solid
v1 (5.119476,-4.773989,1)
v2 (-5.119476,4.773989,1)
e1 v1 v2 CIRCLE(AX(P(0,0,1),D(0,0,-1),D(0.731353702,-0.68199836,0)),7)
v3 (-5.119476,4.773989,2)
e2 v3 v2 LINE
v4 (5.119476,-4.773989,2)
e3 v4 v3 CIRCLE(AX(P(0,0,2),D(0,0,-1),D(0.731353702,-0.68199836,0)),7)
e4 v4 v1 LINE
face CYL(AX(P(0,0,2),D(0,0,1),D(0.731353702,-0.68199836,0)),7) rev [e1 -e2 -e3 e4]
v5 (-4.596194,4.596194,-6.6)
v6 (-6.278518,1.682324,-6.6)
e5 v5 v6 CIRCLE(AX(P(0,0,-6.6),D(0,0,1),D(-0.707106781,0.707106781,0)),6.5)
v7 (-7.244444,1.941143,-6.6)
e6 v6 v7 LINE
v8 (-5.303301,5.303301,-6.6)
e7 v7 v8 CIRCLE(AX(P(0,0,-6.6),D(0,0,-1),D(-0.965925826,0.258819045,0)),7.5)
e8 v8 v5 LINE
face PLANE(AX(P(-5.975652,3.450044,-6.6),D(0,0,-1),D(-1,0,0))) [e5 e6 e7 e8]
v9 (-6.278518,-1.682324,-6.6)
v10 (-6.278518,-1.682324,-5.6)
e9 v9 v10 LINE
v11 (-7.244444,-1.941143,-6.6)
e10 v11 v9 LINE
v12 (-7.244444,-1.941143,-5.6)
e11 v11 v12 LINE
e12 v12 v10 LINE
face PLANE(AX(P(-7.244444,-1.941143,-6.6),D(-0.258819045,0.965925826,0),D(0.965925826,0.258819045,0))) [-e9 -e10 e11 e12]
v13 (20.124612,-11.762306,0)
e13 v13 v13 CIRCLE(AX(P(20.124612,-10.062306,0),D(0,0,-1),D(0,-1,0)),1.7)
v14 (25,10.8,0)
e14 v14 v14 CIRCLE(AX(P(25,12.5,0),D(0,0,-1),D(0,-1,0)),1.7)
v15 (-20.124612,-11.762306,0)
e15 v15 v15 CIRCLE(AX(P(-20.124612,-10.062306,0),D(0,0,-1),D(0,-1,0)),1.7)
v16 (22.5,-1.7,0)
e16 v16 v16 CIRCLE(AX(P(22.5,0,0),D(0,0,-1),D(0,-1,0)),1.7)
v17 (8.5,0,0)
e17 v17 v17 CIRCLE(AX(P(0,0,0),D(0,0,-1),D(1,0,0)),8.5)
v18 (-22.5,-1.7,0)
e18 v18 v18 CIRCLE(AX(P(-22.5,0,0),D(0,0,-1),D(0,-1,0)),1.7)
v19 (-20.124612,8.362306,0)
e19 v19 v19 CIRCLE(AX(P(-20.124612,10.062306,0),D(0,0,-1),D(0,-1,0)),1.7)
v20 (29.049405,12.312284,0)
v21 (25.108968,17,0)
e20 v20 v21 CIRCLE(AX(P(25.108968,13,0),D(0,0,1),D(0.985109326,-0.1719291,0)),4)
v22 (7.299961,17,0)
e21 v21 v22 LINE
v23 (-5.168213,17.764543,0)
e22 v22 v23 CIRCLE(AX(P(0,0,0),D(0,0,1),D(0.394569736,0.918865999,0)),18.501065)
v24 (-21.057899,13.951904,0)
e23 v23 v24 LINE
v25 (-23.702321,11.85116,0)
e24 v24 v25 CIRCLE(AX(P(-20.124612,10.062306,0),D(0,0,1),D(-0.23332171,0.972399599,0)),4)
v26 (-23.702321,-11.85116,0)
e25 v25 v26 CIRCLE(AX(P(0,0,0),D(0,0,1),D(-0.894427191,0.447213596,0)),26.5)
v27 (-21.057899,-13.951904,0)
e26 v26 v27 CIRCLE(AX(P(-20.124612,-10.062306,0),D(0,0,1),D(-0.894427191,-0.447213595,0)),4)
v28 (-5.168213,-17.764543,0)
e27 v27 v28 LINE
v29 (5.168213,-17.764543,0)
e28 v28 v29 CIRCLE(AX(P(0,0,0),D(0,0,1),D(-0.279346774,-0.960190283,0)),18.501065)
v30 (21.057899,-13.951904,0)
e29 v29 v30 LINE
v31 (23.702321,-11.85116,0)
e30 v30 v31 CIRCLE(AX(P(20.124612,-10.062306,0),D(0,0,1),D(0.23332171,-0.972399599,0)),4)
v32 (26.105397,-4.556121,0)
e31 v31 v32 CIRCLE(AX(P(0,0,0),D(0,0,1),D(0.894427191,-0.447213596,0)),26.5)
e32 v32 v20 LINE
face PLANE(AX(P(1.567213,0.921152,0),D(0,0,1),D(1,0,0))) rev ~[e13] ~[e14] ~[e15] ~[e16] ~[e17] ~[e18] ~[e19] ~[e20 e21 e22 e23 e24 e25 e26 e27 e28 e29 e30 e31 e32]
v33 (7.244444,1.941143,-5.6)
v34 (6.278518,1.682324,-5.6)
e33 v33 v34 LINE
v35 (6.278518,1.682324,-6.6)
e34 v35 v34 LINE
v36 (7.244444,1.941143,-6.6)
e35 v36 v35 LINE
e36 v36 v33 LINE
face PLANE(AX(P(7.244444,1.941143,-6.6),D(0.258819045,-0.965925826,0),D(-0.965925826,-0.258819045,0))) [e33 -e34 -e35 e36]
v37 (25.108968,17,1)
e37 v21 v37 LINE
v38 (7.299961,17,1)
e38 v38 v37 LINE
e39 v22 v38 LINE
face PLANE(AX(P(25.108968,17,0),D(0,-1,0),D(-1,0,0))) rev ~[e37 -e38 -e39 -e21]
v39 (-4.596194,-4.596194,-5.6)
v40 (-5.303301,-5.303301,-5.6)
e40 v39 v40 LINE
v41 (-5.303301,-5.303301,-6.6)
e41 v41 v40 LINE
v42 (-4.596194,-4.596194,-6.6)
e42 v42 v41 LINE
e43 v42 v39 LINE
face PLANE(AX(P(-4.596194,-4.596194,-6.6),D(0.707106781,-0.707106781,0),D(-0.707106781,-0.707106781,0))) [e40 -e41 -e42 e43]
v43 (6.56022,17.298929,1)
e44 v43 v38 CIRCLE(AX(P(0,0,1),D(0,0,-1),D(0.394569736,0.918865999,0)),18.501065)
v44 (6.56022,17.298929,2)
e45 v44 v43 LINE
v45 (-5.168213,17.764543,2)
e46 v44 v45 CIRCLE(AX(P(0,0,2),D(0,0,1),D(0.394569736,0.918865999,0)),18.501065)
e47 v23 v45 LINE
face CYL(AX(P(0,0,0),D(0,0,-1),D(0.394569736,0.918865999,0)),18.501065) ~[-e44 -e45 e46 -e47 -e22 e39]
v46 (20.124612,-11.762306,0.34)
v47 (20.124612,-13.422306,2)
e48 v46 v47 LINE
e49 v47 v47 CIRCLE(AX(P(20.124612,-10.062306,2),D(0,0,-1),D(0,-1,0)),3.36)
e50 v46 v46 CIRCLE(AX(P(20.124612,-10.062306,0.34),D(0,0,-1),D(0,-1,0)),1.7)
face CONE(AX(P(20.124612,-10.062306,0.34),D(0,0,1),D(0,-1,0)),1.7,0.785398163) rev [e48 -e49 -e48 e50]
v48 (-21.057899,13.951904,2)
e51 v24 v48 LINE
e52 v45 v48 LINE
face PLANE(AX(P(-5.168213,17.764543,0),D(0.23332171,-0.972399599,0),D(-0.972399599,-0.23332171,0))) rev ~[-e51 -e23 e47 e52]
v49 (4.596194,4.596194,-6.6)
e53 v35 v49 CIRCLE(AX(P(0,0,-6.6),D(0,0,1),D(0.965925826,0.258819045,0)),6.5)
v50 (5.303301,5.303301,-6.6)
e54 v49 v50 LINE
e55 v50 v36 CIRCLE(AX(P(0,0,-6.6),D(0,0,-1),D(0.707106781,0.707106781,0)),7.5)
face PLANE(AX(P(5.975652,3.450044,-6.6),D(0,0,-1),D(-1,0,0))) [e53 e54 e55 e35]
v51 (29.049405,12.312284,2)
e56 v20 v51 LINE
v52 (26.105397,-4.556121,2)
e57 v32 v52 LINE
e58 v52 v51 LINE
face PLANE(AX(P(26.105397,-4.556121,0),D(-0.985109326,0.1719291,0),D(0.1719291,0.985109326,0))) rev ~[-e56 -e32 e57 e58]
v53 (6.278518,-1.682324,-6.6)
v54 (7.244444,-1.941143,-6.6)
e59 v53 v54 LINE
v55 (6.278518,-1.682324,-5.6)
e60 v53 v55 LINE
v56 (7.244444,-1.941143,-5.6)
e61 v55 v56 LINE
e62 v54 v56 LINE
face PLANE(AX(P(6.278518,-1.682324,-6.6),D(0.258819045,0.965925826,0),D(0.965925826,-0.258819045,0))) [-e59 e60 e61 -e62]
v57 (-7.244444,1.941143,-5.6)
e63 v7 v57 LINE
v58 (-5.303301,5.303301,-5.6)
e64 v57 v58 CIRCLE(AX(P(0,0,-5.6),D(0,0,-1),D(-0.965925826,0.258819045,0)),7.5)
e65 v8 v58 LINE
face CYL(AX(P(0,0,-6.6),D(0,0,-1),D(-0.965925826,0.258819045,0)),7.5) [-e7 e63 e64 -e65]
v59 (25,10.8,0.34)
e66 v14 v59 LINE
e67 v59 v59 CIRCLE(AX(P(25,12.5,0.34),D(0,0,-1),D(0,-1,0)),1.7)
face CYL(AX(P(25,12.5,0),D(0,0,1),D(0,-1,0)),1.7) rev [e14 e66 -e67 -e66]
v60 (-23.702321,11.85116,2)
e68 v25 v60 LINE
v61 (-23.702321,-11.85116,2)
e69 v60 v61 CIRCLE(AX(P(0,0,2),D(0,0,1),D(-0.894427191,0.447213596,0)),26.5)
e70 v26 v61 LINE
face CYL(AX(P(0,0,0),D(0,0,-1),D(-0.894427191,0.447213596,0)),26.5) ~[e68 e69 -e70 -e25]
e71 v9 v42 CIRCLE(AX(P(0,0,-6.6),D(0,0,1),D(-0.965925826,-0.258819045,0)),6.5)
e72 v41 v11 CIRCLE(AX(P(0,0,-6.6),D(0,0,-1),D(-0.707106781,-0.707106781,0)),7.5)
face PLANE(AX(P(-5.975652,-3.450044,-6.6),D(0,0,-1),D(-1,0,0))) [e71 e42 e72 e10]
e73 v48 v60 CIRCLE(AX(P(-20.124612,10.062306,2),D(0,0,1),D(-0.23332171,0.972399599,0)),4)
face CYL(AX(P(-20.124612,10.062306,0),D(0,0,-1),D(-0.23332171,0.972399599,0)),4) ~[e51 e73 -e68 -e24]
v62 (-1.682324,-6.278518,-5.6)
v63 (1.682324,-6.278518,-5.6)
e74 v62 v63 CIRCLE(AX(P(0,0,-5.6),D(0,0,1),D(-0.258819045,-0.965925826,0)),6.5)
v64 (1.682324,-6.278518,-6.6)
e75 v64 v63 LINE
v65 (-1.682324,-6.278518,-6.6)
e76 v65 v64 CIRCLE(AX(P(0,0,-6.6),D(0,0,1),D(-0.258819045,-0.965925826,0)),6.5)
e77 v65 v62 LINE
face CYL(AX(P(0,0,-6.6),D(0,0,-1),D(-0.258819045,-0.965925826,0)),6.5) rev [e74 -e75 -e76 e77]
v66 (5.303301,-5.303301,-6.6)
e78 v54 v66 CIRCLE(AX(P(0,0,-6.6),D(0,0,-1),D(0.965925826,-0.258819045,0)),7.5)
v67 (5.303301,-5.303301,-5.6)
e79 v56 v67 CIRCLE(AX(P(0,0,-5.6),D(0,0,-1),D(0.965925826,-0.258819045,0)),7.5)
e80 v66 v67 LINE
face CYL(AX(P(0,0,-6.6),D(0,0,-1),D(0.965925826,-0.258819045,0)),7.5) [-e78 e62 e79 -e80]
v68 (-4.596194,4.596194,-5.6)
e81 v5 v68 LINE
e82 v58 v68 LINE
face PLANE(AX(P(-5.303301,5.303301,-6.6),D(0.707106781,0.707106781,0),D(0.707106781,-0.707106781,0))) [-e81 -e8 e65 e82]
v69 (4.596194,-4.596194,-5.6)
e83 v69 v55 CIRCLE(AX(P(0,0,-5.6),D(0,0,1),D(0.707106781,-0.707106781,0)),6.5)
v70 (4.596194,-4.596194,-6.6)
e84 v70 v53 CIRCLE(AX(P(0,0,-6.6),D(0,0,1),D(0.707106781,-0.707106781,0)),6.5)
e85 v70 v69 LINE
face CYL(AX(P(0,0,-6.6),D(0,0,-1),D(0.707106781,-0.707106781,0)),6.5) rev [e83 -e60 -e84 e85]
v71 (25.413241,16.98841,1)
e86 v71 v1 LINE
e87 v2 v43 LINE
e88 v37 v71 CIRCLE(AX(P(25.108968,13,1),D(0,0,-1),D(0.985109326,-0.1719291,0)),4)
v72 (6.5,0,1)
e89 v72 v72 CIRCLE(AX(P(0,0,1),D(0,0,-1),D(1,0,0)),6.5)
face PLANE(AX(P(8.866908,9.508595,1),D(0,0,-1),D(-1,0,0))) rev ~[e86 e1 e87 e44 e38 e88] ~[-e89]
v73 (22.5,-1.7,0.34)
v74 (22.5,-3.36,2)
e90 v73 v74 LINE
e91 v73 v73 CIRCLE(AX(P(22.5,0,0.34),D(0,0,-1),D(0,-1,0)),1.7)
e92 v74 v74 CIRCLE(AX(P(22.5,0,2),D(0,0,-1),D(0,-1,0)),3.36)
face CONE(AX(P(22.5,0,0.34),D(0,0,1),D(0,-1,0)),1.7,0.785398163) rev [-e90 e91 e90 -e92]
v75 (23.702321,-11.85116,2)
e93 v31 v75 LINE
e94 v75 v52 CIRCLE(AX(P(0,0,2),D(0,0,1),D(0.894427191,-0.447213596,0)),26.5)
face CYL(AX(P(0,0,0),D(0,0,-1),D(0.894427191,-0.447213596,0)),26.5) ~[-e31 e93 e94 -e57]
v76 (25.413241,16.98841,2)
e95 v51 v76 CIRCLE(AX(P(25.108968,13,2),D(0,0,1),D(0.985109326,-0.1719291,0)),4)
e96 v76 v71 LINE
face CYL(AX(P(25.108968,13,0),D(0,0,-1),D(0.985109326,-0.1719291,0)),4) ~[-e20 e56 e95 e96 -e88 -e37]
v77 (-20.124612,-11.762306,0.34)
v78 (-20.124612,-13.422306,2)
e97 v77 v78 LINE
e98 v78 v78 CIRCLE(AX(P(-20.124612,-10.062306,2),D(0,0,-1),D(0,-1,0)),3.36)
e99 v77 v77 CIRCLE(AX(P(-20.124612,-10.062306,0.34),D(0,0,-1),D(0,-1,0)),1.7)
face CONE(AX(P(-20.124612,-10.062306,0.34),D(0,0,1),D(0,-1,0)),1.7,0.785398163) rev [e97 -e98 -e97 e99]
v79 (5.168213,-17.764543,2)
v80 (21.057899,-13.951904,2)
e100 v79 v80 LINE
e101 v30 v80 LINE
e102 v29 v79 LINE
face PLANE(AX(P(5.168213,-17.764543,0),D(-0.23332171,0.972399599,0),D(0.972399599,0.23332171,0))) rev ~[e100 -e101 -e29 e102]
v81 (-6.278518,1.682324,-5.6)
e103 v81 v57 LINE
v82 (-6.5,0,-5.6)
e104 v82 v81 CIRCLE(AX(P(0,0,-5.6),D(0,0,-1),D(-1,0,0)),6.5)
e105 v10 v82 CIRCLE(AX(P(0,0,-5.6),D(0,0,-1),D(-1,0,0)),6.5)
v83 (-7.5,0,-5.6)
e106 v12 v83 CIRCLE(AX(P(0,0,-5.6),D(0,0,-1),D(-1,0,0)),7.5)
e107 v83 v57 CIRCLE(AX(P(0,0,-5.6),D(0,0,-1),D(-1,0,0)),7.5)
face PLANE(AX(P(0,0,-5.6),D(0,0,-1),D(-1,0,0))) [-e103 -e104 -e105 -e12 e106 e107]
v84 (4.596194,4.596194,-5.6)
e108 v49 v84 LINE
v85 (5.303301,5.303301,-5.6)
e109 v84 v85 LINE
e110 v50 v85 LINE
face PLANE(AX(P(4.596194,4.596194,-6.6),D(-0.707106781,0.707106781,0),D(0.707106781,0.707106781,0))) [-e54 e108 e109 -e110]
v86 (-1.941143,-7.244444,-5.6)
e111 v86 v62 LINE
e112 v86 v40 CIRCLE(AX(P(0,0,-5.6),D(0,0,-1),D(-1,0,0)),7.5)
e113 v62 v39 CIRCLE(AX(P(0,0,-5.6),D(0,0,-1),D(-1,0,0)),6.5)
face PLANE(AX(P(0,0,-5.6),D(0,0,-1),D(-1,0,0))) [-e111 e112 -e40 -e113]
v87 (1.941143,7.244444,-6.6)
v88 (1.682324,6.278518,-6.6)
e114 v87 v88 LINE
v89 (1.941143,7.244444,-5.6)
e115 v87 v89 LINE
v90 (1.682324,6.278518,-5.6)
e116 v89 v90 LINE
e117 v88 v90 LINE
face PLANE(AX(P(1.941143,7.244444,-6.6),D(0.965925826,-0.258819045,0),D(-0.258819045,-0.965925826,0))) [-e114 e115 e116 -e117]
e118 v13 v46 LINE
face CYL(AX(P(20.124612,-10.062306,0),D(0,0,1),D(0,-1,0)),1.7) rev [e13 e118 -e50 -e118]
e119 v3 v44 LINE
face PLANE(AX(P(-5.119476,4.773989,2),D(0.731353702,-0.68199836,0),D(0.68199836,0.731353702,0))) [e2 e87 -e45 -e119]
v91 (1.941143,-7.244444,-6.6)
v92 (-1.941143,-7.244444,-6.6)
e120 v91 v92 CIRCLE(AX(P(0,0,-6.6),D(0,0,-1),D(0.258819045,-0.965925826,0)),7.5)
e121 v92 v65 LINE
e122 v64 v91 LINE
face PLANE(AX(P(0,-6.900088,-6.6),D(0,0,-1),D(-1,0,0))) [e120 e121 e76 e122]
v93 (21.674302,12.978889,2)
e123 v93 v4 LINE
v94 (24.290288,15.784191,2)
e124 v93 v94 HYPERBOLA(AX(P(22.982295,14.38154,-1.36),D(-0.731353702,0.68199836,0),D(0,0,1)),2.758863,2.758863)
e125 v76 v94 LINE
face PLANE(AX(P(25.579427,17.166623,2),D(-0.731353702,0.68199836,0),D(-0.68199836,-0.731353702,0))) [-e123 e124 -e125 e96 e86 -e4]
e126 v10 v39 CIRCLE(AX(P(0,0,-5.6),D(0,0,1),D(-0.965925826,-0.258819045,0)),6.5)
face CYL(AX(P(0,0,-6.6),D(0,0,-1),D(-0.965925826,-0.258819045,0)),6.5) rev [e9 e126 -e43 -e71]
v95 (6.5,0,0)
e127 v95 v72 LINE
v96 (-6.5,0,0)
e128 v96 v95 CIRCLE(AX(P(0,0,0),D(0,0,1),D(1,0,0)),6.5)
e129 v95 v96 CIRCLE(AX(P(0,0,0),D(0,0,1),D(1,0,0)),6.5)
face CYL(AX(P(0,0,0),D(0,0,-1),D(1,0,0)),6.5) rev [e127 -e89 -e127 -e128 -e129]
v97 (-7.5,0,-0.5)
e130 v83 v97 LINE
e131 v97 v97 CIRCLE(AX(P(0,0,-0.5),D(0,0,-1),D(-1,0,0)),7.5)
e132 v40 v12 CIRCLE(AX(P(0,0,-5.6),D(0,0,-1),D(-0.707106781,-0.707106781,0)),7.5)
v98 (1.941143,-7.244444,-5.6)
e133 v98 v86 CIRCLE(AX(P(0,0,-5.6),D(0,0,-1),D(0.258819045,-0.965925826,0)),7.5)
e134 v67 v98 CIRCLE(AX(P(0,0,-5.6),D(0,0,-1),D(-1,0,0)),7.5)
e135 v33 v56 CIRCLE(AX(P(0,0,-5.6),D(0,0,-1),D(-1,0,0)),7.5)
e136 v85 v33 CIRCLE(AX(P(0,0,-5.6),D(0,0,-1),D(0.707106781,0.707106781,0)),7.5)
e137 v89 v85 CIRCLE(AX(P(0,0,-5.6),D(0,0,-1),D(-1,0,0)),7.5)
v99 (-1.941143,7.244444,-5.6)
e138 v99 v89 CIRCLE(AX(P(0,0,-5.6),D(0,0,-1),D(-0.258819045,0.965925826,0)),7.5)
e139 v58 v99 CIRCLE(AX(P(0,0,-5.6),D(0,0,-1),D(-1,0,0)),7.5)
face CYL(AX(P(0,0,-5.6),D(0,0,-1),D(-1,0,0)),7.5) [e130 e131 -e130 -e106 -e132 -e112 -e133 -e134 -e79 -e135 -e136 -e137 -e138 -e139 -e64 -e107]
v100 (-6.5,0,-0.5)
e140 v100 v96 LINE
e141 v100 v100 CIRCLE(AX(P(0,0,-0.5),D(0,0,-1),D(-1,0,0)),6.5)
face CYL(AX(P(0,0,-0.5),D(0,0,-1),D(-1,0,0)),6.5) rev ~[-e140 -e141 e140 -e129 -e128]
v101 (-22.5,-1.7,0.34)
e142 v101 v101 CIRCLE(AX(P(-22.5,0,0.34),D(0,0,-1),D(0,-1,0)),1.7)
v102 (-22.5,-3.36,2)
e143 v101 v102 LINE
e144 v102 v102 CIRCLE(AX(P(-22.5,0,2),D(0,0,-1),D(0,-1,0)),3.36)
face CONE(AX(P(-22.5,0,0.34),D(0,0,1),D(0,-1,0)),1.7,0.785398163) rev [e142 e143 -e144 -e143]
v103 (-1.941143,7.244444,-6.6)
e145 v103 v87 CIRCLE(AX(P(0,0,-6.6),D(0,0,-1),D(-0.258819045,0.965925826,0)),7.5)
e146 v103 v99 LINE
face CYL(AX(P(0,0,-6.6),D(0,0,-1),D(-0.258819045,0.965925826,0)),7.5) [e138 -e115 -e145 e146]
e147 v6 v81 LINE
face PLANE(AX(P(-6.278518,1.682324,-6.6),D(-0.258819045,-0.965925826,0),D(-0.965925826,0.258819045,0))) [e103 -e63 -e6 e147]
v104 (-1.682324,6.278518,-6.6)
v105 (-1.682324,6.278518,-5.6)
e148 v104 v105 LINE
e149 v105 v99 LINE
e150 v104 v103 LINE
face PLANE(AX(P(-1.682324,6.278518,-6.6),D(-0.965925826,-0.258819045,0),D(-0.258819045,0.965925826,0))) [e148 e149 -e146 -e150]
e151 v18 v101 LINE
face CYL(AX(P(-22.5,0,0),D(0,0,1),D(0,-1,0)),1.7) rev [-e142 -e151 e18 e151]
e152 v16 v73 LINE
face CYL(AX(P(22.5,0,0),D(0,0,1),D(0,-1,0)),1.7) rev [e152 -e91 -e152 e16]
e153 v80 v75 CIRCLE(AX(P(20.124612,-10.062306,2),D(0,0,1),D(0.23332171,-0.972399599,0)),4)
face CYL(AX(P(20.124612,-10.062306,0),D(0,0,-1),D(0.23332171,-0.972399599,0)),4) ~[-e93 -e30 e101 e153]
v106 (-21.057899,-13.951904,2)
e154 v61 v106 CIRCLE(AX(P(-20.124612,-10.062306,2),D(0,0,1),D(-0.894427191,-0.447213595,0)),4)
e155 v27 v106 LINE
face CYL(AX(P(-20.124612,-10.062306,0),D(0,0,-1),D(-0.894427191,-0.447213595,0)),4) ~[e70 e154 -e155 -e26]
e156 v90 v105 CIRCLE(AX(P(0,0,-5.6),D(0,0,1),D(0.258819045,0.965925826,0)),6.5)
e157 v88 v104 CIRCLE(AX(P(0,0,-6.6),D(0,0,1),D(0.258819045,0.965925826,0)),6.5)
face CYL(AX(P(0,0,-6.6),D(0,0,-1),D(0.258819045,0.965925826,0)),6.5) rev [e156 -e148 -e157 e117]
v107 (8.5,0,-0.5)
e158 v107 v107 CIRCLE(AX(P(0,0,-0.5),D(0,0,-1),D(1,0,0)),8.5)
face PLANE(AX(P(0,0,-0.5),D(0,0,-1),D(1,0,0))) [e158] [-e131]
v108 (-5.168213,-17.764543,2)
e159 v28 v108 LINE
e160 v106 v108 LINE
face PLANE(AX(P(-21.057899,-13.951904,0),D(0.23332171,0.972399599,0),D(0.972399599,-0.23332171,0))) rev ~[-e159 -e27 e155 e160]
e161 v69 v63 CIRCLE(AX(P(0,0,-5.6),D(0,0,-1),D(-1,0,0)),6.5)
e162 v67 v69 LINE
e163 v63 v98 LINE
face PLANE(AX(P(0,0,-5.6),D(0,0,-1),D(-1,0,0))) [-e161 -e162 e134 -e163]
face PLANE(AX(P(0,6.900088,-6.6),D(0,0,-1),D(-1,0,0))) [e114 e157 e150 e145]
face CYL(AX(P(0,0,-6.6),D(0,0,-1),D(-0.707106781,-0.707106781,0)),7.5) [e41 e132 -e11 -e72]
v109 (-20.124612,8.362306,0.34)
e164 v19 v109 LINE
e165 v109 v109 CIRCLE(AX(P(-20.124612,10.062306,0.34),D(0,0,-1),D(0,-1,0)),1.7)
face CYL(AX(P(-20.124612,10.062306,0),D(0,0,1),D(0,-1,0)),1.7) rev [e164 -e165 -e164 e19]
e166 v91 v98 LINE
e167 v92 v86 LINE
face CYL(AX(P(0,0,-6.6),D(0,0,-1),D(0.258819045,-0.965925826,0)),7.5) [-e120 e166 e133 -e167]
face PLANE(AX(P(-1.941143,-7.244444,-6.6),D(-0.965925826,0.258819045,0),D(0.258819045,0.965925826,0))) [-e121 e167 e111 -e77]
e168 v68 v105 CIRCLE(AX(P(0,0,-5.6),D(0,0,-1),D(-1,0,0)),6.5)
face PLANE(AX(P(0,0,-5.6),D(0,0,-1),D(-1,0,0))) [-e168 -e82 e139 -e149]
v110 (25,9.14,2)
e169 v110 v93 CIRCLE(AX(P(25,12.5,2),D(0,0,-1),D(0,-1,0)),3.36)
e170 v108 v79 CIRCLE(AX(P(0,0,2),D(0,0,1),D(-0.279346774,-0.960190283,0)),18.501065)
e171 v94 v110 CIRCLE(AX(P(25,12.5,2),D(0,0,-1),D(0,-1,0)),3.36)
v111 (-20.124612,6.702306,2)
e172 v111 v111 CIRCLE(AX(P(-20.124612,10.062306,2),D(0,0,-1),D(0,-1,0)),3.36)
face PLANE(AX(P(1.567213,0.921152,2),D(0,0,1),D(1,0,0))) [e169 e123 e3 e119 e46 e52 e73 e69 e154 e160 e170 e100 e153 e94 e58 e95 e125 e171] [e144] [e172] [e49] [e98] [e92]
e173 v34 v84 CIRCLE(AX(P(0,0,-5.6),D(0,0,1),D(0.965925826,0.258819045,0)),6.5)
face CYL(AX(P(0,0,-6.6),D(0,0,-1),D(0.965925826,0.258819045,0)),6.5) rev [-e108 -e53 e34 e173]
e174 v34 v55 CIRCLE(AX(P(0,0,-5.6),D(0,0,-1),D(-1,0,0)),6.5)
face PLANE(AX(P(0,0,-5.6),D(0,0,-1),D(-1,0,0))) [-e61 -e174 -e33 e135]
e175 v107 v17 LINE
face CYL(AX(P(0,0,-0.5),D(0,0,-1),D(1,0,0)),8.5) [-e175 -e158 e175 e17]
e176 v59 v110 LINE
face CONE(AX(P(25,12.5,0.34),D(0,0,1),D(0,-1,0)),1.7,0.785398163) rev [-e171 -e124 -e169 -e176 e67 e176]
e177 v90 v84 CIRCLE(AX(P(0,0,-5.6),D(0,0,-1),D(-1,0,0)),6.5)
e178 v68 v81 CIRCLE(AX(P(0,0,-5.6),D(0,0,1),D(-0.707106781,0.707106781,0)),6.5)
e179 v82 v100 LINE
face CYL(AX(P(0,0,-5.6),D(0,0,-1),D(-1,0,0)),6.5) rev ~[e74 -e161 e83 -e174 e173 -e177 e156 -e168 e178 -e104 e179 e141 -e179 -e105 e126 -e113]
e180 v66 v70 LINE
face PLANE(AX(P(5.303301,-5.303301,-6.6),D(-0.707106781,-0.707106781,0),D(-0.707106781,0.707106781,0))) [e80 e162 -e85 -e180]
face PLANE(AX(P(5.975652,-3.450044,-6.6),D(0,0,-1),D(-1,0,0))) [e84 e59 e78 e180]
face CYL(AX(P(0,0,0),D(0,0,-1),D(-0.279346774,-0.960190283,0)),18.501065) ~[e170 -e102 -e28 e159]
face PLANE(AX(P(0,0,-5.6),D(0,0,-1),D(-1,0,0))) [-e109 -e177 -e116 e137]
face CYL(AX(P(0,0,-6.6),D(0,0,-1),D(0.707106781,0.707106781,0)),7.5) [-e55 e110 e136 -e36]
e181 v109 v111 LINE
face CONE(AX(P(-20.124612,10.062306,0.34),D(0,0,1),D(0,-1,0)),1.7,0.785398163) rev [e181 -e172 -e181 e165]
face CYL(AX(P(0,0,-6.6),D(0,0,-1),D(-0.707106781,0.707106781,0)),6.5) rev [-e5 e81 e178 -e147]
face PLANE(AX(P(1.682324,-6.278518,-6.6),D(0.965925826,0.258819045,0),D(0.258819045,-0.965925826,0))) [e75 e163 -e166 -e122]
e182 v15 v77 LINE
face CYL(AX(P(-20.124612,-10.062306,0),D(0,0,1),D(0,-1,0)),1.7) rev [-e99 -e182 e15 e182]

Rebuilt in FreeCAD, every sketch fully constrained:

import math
import FreeCAD as App
import Part
import Sketcher
Q = App.Units.Quantity


def add_polygon(sketch, points):
    """Adds a closed chain of lines whose ends are joined by coincident constraints."""
    first, n = sketch.GeometryCount, len(points)
    for a, b in zip(points, points[1:] + points[:1]):
        sketch.addGeometry(Part.LineSegment(App.Vector(*a, 0), App.Vector(*b, 0)), False)
    for i in range(n):
        sketch.addConstraint(Sketcher.Constraint("Coincident", first + i, 2, first + (i + 1) % n, 1))

doc = App.newDocument("Part")
body = doc.addObject("PartDesign::Body", "Body")

# Sketch on XY plane
sketch1 = doc.addObject("Sketcher::SketchObject", "Sketch")
body.addObject(sketch1)
sketch1.AttachmentSupport = (doc.XY_Plane, [""])
sketch1.MapMode = "FlatFace"
sketch1.addGeometry([
    Part.LineSegment(App.Vector(-5.168213, 17.764543, 0), App.Vector(-21.057899, 13.951904, 0)),  # 0
    Part.ArcOfCircle(Part.Circle(App.Vector(-20.124612, 10.062306, 0), App.Vector(0, 0, 1), 4), math.radians(103.492714), math.radians(153.434949)),  # 1
    Part.ArcOfCircle(Part.Circle(App.Vector(0, 0, 0), App.Vector(0, 0, 1), 26.5), math.radians(153.434949), math.radians(206.565051)),  # 2
    Part.ArcOfCircle(Part.Circle(App.Vector(-20.124612, -10.062306, 0), App.Vector(0, 0, 1), 4), math.radians(-153.434949), math.radians(-103.492714)),  # 3
    Part.LineSegment(App.Vector(-21.057899, -13.951904, 0), App.Vector(-5.168213, -17.764543, 0)),  # 4
    Part.ArcOfCircle(Part.Circle(App.Vector(0, 0, 0), App.Vector(0, 0, 1), 18.501065), math.radians(-106.221222), math.radians(-73.778778)),  # 5
    Part.LineSegment(App.Vector(5.168213, -17.764543, 0), App.Vector(21.057899, -13.951904, 0)),  # 6
    Part.ArcOfCircle(Part.Circle(App.Vector(20.124612, -10.062306, 0), App.Vector(0, 0, 1), 4), math.radians(-76.507286), math.radians(-26.565051)),  # 7
    Part.ArcOfCircle(Part.Circle(App.Vector(0, 0, 0), App.Vector(0, 0, 1), 26.5), math.radians(-26.565051), math.radians(-9.9)),  # 8
    Part.LineSegment(App.Vector(26.105397, -4.556121, 0), App.Vector(29.049405, 12.312284, 0)),  # 9
    Part.ArcOfCircle(Part.Circle(App.Vector(25.108968, 13, 0), App.Vector(0, 0, 1), 4), math.radians(-9.9), math.radians(90)),  # 10
    Part.LineSegment(App.Vector(25.108968, 17, 0), App.Vector(7.299961, 17, 0)),  # 11
    Part.ArcOfCircle(Part.Circle(App.Vector(0, 0, 0), App.Vector(0, 0, 1), 18.501065), math.radians(66.760858), math.radians(106.221222)),  # 12
    Part.Circle(App.Vector(-20.124612, -10.062306, 0), App.Vector(0, 0, 1), 0.5),  # 13
    Part.Circle(App.Vector(-22.5, 0, 0), App.Vector(0, 0, 1), 0.5),  # 14
    Part.Circle(App.Vector(0, 0, 0), App.Vector(0, 0, 1), 6.5),  # 15
    Part.Circle(App.Vector(20.124612, -10.062306, 0), App.Vector(0, 0, 1), 0.5),  # 16
    Part.Circle(App.Vector(22.5, 0, 0), App.Vector(0, 0, 1), 0.5),  # 17
    Part.Circle(App.Vector(-20.124612, 10.062306, 0), App.Vector(0, 0, 1), 0.5),  # 18
    Part.Circle(App.Vector(25, 12.5, 0), App.Vector(0, 0, 1), 0.5),  # 19
], False)
sketch1.addConstraint([
    Sketcher.Constraint("Tangent", 0, 2, 1, 1),
    Sketcher.Constraint("Tangent", 1, 2, 2, 1),
    Sketcher.Constraint("Tangent", 2, 2, 3, 1),
    Sketcher.Constraint("Tangent", 3, 2, 4, 1),
    Sketcher.Constraint("Coincident", 4, 2, 5, 1),
    Sketcher.Constraint("Coincident", 5, 2, 6, 1),
    Sketcher.Constraint("Tangent", 6, 2, 7, 1),
    Sketcher.Constraint("Tangent", 7, 2, 8, 1),
    Sketcher.Constraint("Tangent", 8, 2, 9, 1),
    Sketcher.Constraint("Tangent", 9, 2, 10, 1),
    Sketcher.Constraint("Tangent", 10, 2, 11, 1),
    Sketcher.Constraint("Coincident", 11, 2, 12, 1),
    Sketcher.Constraint("Coincident", 12, 2, 0, 1),
    Sketcher.Constraint("Horizontal", 11),
    Sketcher.Constraint("Coincident", 2, 3, -1, 1),
    Sketcher.Constraint("Coincident", 5, 3, -1, 1),
    Sketcher.Constraint("Coincident", 8, 3, -1, 1),
    Sketcher.Constraint("Coincident", 12, 3, -1, 1),
    Sketcher.Constraint("Coincident", 15, 3, -1, 1),
    Sketcher.Constraint("Coincident", 13, 3, 3, 3),
    Sketcher.Constraint("Coincident", 16, 3, 7, 3),
    Sketcher.Constraint("Coincident", 18, 3, 1, 3),
    Sketcher.Constraint("Equal", 1, 3),
    Sketcher.Constraint("Equal", 3, 7),
    Sketcher.Constraint("Equal", 2, 8),
    Sketcher.Constraint("Equal", 7, 10),
    Sketcher.Constraint("Equal", 5, 12),
    Sketcher.Constraint("Equal", 13, 14),
    Sketcher.Constraint("Equal", 14, 16),
    Sketcher.Constraint("Equal", 16, 17),
    Sketcher.Constraint("Equal", 17, 18),
    Sketcher.Constraint("Equal", 18, 19),
    Sketcher.Constraint("Symmetric", 14, 3, 17, 3, -1, 1),
    Sketcher.Constraint("Symmetric", 0, 2, 6, 2, -1, 1),
    Sketcher.Constraint("Symmetric", 3, 2, 6, 2, -2),
    Sketcher.Constraint("PointOnObject", 14, 3, -1),
    Sketcher.Constraint("Diameter", 13, Q("1 mm")),
    Sketcher.Constraint("Diameter", 15, Q("13 mm")),
    Sketcher.Constraint("Radius", 1, Q("4 mm")),
    Sketcher.Constraint("Radius", 2, Q("26.5 mm")),
    Sketcher.Constraint("DistanceY", -1, 1, 10, 3, Q("13 mm")),
    Sketcher.Constraint("DistanceX", -1, 1, 19, 3, Q("25 mm")),
    Sketcher.Constraint("Angle", 9, Q("80.1 deg")),
    Sketcher.Constraint("DistanceX", 14, 3, -1, 1, Q("22.5 mm")),
    Sketcher.Constraint("DistanceY", -1, 1, 19, 3, Q("12.5 mm")),
    Sketcher.Constraint("Radius", 5, Q("18.501065 mm")),
    Sketcher.Constraint("DistanceX", 0, 2, -1, 1, Q("21.057899 mm")),
    Sketcher.Constraint("DistanceX", 13, 3, 4, 2, Q("14.956399 mm")),
])
pad1 = doc.addObject("PartDesign::Pad", "Pad")
body.addObject(pad1)
pad1.Profile = sketch1
pad1.Length = 2

# Sketch on YZ plane
sketch2 = doc.addObject("Sketcher::SketchObject", "Sketch001")
body.addObject(sketch2)
sketch2.AttachmentSupport = (doc.YZ_Plane, [""])
sketch2.MapMode = "FlatFace"
sketch2.AttachmentOffset = App.Placement(App.Vector(0, 0, -20.124612), App.Rotation())
add_polygon(sketch2, [(10.062306, 0), (10.062306, 2), (6.702306, 2), (8.362306, 0.34), (8.362306, 0)])  # lines 0-4
sketch2.addGeometry(Part.LineSegment(App.Vector(10.062306, 2, 0), App.Vector(10.062306, 0, 0)), True)  # axis
sketch2.addConstraint([
    Sketcher.Constraint("Vertical", 0),
    Sketcher.Constraint("Horizontal", 1),
    Sketcher.Constraint("Vertical", 3),
    Sketcher.Constraint("Horizontal", 4),
    Sketcher.Constraint("Vertical", 5),
    Sketcher.Constraint("Coincident", 5, 1, 0, 2),
    Sketcher.Constraint("PointOnObject", 3, 2, -1),
    Sketcher.Constraint("PointOnObject", 5, 2, -1),
    Sketcher.Constraint("DistanceY", 0, 1, 0, 2, Q("2 mm")),
    Sketcher.Constraint("Angle", 2, Q("-45 deg")),
    Sketcher.Constraint("DistanceX", 4, 1, 4, 2, Q("1.7 mm")),
    Sketcher.Constraint("DistanceX", 1, 2, 1, 1, Q("3.36 mm")),
    Sketcher.Constraint("DistanceX", -1, 1, 0, 2, Q("10.062306 mm")),
])
groove = doc.addObject("PartDesign::Groove", "Groove")
body.addObject(groove)
groove.Profile = sketch2
groove.ReferenceAxis = (sketch2, ["Axis0"])
groove.Angle = 360
doc.recompute()

datumline = doc.addObject("PartDesign::Line", "DatumLine")
body.addObject(datumline)
datumline.Placement = App.Placement(App.Vector(0, 0, 0), App.Rotation(App.Vector(0, 0, 1), App.Vector(-0.229752921, -0.973248989, 0)))
linearpattern = doc.addObject("PartDesign::LinearPattern", "LinearPattern")
body.addObject(linearpattern)
linearpattern.Originals = [groove]
linearpattern.Direction = (datumline, [""])
linearpattern.Mode = "offset"
linearpattern.Offset = 10.338881
linearpattern.Occurrences = 2
body.Tip = linearpattern
doc.recompute()

linearpattern2 = doc.addObject("PartDesign::LinearPattern", "LinearPattern001")
body.addObject(linearpattern2)
linearpattern2.Originals = [groove]
linearpattern2.Direction = (doc.Y_Axis, [""])
linearpattern2.Mode = "offset"
linearpattern2.Offset = 20.124612
linearpattern2.Occurrences = 2
linearpattern2.Reversed = True
body.Tip = linearpattern2
doc.recompute()

datumline2 = doc.addObject("PartDesign::Line", "DatumLine001")
body.addObject(datumline2)
datumline2.Placement = App.Placement(App.Vector(0, 0, 0), App.Rotation(App.Vector(0, 0, 1), App.Vector(0.894427191, -0.447213595, 0)))
linearpattern3 = doc.addObject("PartDesign::LinearPattern", "LinearPattern002")
body.addObject(linearpattern3)
linearpattern3.Originals = [groove]
linearpattern3.Direction = (datumline2, [""])
linearpattern3.Mode = "offset"
linearpattern3.Offset = 45
linearpattern3.Occurrences = 2
body.Tip = linearpattern3
doc.recompute()

datumline3 = doc.addObject("PartDesign::Line", "DatumLine002")
body.addObject(datumline3)
datumline3.Placement = App.Placement(App.Vector(0, 0, 0), App.Rotation(App.Vector(0, 0, 1), App.Vector(0.973248989, -0.229752921, 0)))
linearpattern4 = doc.addObject("PartDesign::LinearPattern", "LinearPattern003")
body.addObject(linearpattern4)
linearpattern4.Originals = [groove]
linearpattern4.Direction = (datumline3, [""])
linearpattern4.Mode = "offset"
linearpattern4.Offset = 43.796205
linearpattern4.Occurrences = 2
body.Tip = linearpattern4
doc.recompute()

datumline4 = doc.addObject("PartDesign::Line", "DatumLine003")
body.addObject(datumline4)
datumline4.Placement = App.Placement(App.Vector(0, 0, 0), App.Rotation(App.Vector(0, 0, 1), App.Vector(0.998544031, 0.053942733, 0)))
linearpattern5 = doc.addObject("PartDesign::LinearPattern", "LinearPattern004")
body.addObject(linearpattern5)
linearpattern5.Originals = [groove]
linearpattern5.Direction = (datumline4, [""])
linearpattern5.Mode = "offset"
linearpattern5.Offset = 45.190408
linearpattern5.Occurrences = 2
body.Tip = linearpattern5

# Sketch on XY plane
sketch3 = doc.addObject("Sketcher::SketchObject", "Sketch002")
body.addObject(sketch3)
sketch3.AttachmentSupport = (doc.XY_Plane, [""])
sketch3.MapMode = "FlatFace"
sketch3.AttachmentOffset = App.Placement(App.Vector(0, 0, -0.5), App.Rotation())
sketch3.addGeometry([
    Part.Circle(App.Vector(0, 0, 0), App.Vector(0, 0, 1), 8.5),
    Part.Circle(App.Vector(0, 0, 0), App.Vector(0, 0, 1), 6.5),
], False)
sketch3.addConstraint([
    Sketcher.Constraint("Coincident", 0, 3, -1, 1),
    Sketcher.Constraint("Coincident", 1, 3, -1, 1),
    Sketcher.Constraint("Diameter", 0, Q("17 mm")),
    Sketcher.Constraint("Diameter", 1, Q("13 mm")),
])
pad2 = doc.addObject("PartDesign::Pad", "Pad001")
body.addObject(pad2)
pad2.Profile = sketch3
pad2.Length = 0.5

# Sketch on XY plane
sketch4 = doc.addObject("Sketcher::SketchObject", "Sketch003")
body.addObject(sketch4)
sketch4.AttachmentSupport = (doc.XY_Plane, [""])
sketch4.MapMode = "FlatFace"
sketch4.AttachmentOffset = App.Placement(App.Vector(0, 0, -5.6), App.Rotation())
sketch4.addGeometry([
    Part.Circle(App.Vector(0, 0, 0), App.Vector(0, 0, 1), 7.5),
    Part.Circle(App.Vector(0, 0, 0), App.Vector(0, 0, 1), 6.5),
], False)
sketch4.addConstraint([
    Sketcher.Constraint("Coincident", 0, 3, -1, 1),
    Sketcher.Constraint("Coincident", 1, 3, -1, 1),
    Sketcher.Constraint("Diameter", 0, Q("15 mm")),
    Sketcher.Constraint("Diameter", 1, Q("13 mm")),
])
pad3 = doc.addObject("PartDesign::Pad", "Pad002")
body.addObject(pad3)
pad3.Profile = sketch4
pad3.Length = 5.1

# Sketch on XY plane
sketch5 = doc.addObject("Sketcher::SketchObject", "Sketch004")
body.addObject(sketch5)
sketch5.AttachmentSupport = (doc.XY_Plane, [""])
sketch5.MapMode = "FlatFace"
sketch5.AttachmentOffset = App.Placement(App.Vector(0, 0, 2), App.Rotation())
sketch5.addGeometry([
    Part.LineSegment(App.Vector(15.340475, 26.7146, 0), App.Vector(-5.119476, 4.773989, 0)),
    Part.ArcOfCircle(Part.Circle(App.Vector(0, 0, 0), App.Vector(0, 0, 1), 7), math.radians(137), math.radians(317)),
    Part.LineSegment(App.Vector(5.119476, -4.773989, 0), App.Vector(25.579427, 17.166623, 0)),
    Part.LineSegment(App.Vector(25.579427, 17.166623, 0), App.Vector(15.340475, 26.7146, 0)),
], False)
sketch5.addConstraint([
    Sketcher.Constraint("Tangent", 0, 2, 1, 1),
    Sketcher.Constraint("Tangent", 1, 2, 2, 1),
    Sketcher.Constraint("Coincident", 2, 2, 3, 1),
    Sketcher.Constraint("Coincident", 3, 2, 0, 1),
    Sketcher.Constraint("Coincident", 1, 3, -1, 1),
    Sketcher.Constraint("Parallel", 0, 2),
    Sketcher.Constraint("Perpendicular", 2, 3),
    Sketcher.Constraint("Radius", 1, Q("7 mm")),
    Sketcher.Constraint("Angle", 0, Q("-133 deg")),
    Sketcher.Constraint("Distance", 0, Q("30 mm")),
])
pocket1 = doc.addObject("PartDesign::Pocket", "Pocket")
body.addObject(pocket1)
pocket1.Profile = sketch5
pocket1.Length = 1

# Sketch on XY plane
sketch6 = doc.addObject("Sketcher::SketchObject", "Sketch005")
body.addObject(sketch6)
sketch6.AttachmentSupport = (doc.XY_Plane, [""])
sketch6.MapMode = "FlatFace"
sketch6.AttachmentOffset = App.Placement(App.Vector(0, 0, -6.6), App.Rotation())
sketch6.addGeometry([
    Part.LineSegment(App.Vector(1.941143, 7.244444, 0), App.Vector(1.682324, 6.278518, 0)),  # 0
    Part.ArcOfCircle(Part.Circle(App.Vector(0, 0, 0), App.Vector(0, 0, 1), 6.5), math.radians(75), math.radians(105)),  # 1
    Part.LineSegment(App.Vector(-1.682324, 6.278518, 0), App.Vector(-1.941143, 7.244444, 0)),  # 2
    Part.ArcOfCircle(Part.Circle(App.Vector(0, 0, 0), App.Vector(0, 0, 1), 7.5), math.radians(75), math.radians(105)),  # 3
    Part.LineSegment(App.Vector(-5.303301, 5.303301, 0), App.Vector(-4.596194, 4.596194, 0)),  # 4
    Part.ArcOfCircle(Part.Circle(App.Vector(0, 0, 0), App.Vector(0, 0, 1), 6.5), math.radians(135), math.radians(165)),  # 5
    Part.LineSegment(App.Vector(-6.278518, 1.682324, 0), App.Vector(-7.244444, 1.941143, 0)),  # 6
    Part.ArcOfCircle(Part.Circle(App.Vector(0, 0, 0), App.Vector(0, 0, 1), 7.5), math.radians(135), math.radians(165)),  # 7
    Part.LineSegment(App.Vector(-7.244444, -1.941143, 0), App.Vector(-6.278518, -1.682324, 0)),  # 8
    Part.ArcOfCircle(Part.Circle(App.Vector(0, 0, 0), App.Vector(0, 0, 1), 6.5), math.radians(-165), math.radians(-135)),  # 9
    Part.LineSegment(App.Vector(-4.596194, -4.596194, 0), App.Vector(-5.303301, -5.303301, 0)),  # 10
    Part.ArcOfCircle(Part.Circle(App.Vector(0, 0, 0), App.Vector(0, 0, 1), 7.5), math.radians(-165), math.radians(-135)),  # 11
    Part.LineSegment(App.Vector(-1.941143, -7.244444, 0), App.Vector(-1.682324, -6.278518, 0)),  # 12
    Part.ArcOfCircle(Part.Circle(App.Vector(0, 0, 0), App.Vector(0, 0, 1), 6.5), math.radians(-105), math.radians(-75)),  # 13
    Part.LineSegment(App.Vector(1.682324, -6.278518, 0), App.Vector(1.941143, -7.244444, 0)),  # 14
    Part.ArcOfCircle(Part.Circle(App.Vector(0, 0, 0), App.Vector(0, 0, 1), 7.5), math.radians(-105), math.radians(-75)),  # 15
    Part.LineSegment(App.Vector(5.303301, -5.303301, 0), App.Vector(4.596194, -4.596194, 0)),  # 16
    Part.ArcOfCircle(Part.Circle(App.Vector(0, 0, 0), App.Vector(0, 0, 1), 6.5), math.radians(-45), math.radians(-15)),  # 17
    Part.LineSegment(App.Vector(6.278518, -1.682324, 0), App.Vector(7.244444, -1.941143, 0)),  # 18
    Part.ArcOfCircle(Part.Circle(App.Vector(0, 0, 0), App.Vector(0, 0, 1), 7.5), math.radians(-45), math.radians(-15)),  # 19
    Part.LineSegment(App.Vector(7.244444, 1.941143, 0), App.Vector(6.278518, 1.682324, 0)),  # 20
    Part.ArcOfCircle(Part.Circle(App.Vector(0, 0, 0), App.Vector(0, 0, 1), 6.5), math.radians(15), math.radians(45)),  # 21
    Part.LineSegment(App.Vector(4.596194, 4.596194, 0), App.Vector(5.303301, 5.303301, 0)),  # 22
    Part.ArcOfCircle(Part.Circle(App.Vector(0, 0, 0), App.Vector(0, 0, 1), 7.5), math.radians(15), math.radians(45)),  # 23
], False)
sketch6.addConstraint([
    Sketcher.Constraint("Coincident", 0, 2, 1, 1),
    Sketcher.Constraint("Coincident", 1, 2, 2, 1),
    Sketcher.Constraint("Coincident", 2, 2, 3, 2),
    Sketcher.Constraint("Coincident", 3, 1, 0, 1),
    Sketcher.Constraint("Coincident", 4, 2, 5, 1),
    Sketcher.Constraint("Coincident", 5, 2, 6, 1),
    Sketcher.Constraint("Coincident", 6, 2, 7, 2),
    Sketcher.Constraint("Coincident", 7, 1, 4, 1),
    Sketcher.Constraint("Coincident", 8, 2, 9, 1),
    Sketcher.Constraint("Coincident", 9, 2, 10, 1),
    Sketcher.Constraint("Coincident", 10, 2, 11, 2),
    Sketcher.Constraint("Coincident", 11, 1, 8, 1),
    Sketcher.Constraint("Coincident", 12, 2, 13, 1),
    Sketcher.Constraint("Coincident", 13, 2, 14, 1),
    Sketcher.Constraint("Coincident", 14, 2, 15, 2),
    Sketcher.Constraint("Coincident", 15, 1, 12, 1),
    Sketcher.Constraint("Coincident", 16, 2, 17, 1),
    Sketcher.Constraint("Coincident", 17, 2, 18, 1),
    Sketcher.Constraint("Coincident", 18, 2, 19, 2),
    Sketcher.Constraint("Coincident", 19, 1, 16, 1),
    Sketcher.Constraint("Coincident", 20, 2, 21, 1),
    Sketcher.Constraint("Coincident", 21, 2, 22, 1),
    Sketcher.Constraint("Coincident", 22, 2, 23, 2),
    Sketcher.Constraint("Coincident", 23, 1, 20, 1),
    Sketcher.Constraint("Coincident", 1, 3, -1, 1),
    Sketcher.Constraint("Coincident", 3, 3, -1, 1),
    Sketcher.Constraint("Coincident", 5, 3, -1, 1),
    Sketcher.Constraint("Coincident", 7, 3, -1, 1),
    Sketcher.Constraint("Coincident", 9, 3, -1, 1),
    Sketcher.Constraint("Coincident", 11, 3, -1, 1),
    Sketcher.Constraint("Coincident", 13, 3, -1, 1),
    Sketcher.Constraint("Coincident", 15, 3, -1, 1),
    Sketcher.Constraint("Coincident", 17, 3, -1, 1),
    Sketcher.Constraint("Coincident", 19, 3, -1, 1),
    Sketcher.Constraint("Coincident", 21, 3, -1, 1),
    Sketcher.Constraint("Coincident", 23, 3, -1, 1),
    Sketcher.Constraint("Equal", 1, 5),
    Sketcher.Constraint("Equal", 3, 7),
    Sketcher.Constraint("Equal", 5, 9),
    Sketcher.Constraint("Equal", 7, 11),
    Sketcher.Constraint("Equal", 9, 13),
    Sketcher.Constraint("Equal", 11, 15),
    Sketcher.Constraint("Equal", 13, 17),
    Sketcher.Constraint("Equal", 15, 19),
    Sketcher.Constraint("Equal", 17, 21),
    Sketcher.Constraint("Equal", 19, 23),
    Sketcher.Constraint("Perpendicular", 0, 6),
    Sketcher.Constraint("Perpendicular", 2, 8),
    Sketcher.Constraint("Perpendicular", 4, 10),
    Sketcher.Constraint("Perpendicular", 6, 12),
    Sketcher.Constraint("Perpendicular", 8, 14),
    Sketcher.Constraint("Perpendicular", 10, 16),
    Sketcher.Constraint("Perpendicular", 12, 18),
    Sketcher.Constraint("Perpendicular", 14, 20),
    Sketcher.Constraint("Perpendicular", 16, 22),
    Sketcher.Constraint("Horizontal", 0, 2, 1, 2),
    Sketcher.Constraint("Horizontal", 2, 2, 3, 1),
    Sketcher.Constraint("Horizontal", 12, 2, 13, 2),
    Sketcher.Constraint("Horizontal", 9, 2, 16, 2),
    Sketcher.Constraint("Horizontal", 8, 2, 17, 2),
    Sketcher.Constraint("Horizontal", 10, 2, 19, 1),
    Sketcher.Constraint("Horizontal", 5, 2, 20, 2),
    Sketcher.Constraint("Horizontal", 4, 2, 21, 2),
    Sketcher.Constraint("Vertical", 5, 2, 8, 2),
    Sketcher.Constraint("Vertical", 4, 2, 9, 2),
    Sketcher.Constraint("Vertical", 1, 2, 12, 2),
    Sketcher.Constraint("Radius", 1, Q("6.5 mm")),
    Sketcher.Constraint("Radius", 3, Q("7.5 mm")),
    Sketcher.Constraint("Angle", 0, Q("-105 deg")),
    Sketcher.Constraint("DistanceX", 7, 1, -1, 1, Q("5.303301 mm")),
    Sketcher.Constraint("DistanceX", 4, 2, 1, 2, Q("2.91387 mm")),
    Sketcher.Constraint("DistanceY", 5, 2, 4, 2, Q("2.91387 mm")),
])
pad4 = doc.addObject("PartDesign::Pad", "Pad003")
body.addObject(pad4)
pad4.Profile = sketch6
pad4.Length = 1

doc.recompute()
